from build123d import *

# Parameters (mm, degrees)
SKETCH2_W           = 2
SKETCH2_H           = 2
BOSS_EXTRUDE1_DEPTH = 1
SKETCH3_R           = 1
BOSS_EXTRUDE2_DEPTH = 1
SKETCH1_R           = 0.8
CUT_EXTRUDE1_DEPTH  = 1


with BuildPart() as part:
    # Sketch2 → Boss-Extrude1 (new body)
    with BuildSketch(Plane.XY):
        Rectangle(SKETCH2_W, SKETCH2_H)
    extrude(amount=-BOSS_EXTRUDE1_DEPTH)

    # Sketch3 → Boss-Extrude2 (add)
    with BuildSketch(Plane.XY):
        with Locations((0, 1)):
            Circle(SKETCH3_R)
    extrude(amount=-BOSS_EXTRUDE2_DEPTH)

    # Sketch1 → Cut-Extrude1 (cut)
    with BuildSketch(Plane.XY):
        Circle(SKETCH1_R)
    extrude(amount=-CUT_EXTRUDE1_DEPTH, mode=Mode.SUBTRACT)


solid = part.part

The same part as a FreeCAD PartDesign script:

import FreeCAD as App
import Part
import Sketcher

V = App.Vector
Q = App.Units.Quantity


def add_polygon(sketch, points):
    """Adds a closed chain of lines whose ends are joined by coincident constraints."""
    first, n = sketch.GeometryCount, len(points)
    for a, b in zip(points, points[1:] + points[:1]):
        sketch.addGeometry(Part.LineSegment(App.Vector(*a, 0), App.Vector(*b, 0)), False)
    for i in range(n):
        sketch.addConstraint(Sketcher.Constraint("Coincident", first + i, 2, first + (i + 1) % n, 1))

doc = App.newDocument("Part")
params = doc.addObject("Spreadsheet::Sheet", "Params")
for row, (alias, value) in enumerate([
    ("sketch1_width", "2 mm"),
    ("pad1_length", "1 mm"),
    ("sketch2_diameter", "2 mm"),
    ("pad2_length", "1 mm"),
    ("sketch3_diameter", "1.6 mm"),
    ("pocket1_length", "1 mm"),
], start=1):
    params.set(f"A{row}", alias)
    params.set(f"B{row}", "=" + value)
    params.setAlias(f"B{row}", alias)

body = doc.addObject("PartDesign::Body", "Body")

# Sketch on XY plane
sketch1 = body.newObject("Sketcher::SketchObject", "Sketch")
sketch1.AttachmentSupport = (doc.getObject("XY_Plane"), [""])
sketch1.MapMode = "FlatFace"
add_polygon(sketch1, [(-1, 1), (-1, -1), (1, -1), (1, 1)])  # lines 0-3
sketch1.addConstraint([
    Sketcher.Constraint("Vertical", 0),
    Sketcher.Constraint("Horizontal", 1),
    Sketcher.Constraint("Vertical", 2),
    Sketcher.Constraint("Horizontal", 3),
    Sketcher.Constraint("Symmetric", 0, 2, 2, 2, -1, 1),
    Sketcher.Constraint("Equal", 3, 0),
    Sketcher.Constraint("DistanceX", 1, 1, 1, 2, Q("2 mm")),
])
sketch1.setExpression("Constraints[10]", "Params.sketch1_width")
pad1 = body.newObject("PartDesign::Pad", "Pad")
pad1.Profile = sketch1
pad1.setExpression("Length", "Params.pad1_length")
pad1.Reversed = True

# Sketch on XY plane
sketch2 = body.newObject("Sketcher::SketchObject", "Sketch001")
sketch2.AttachmentSupport = (doc.getObject("XY_Plane"), [""])
sketch2.MapMode = "FlatFace"
sketch2.addGeometry(Part.Circle(V(0, 1, 0), V(0, 0, 1), 1), False)
sketch2.addConstraint([
    Sketcher.Constraint("PointOnObject", 0, 3, -2),
    Sketcher.Constraint("Diameter", 0, Q("2 mm")),
    Sketcher.Constraint("DistanceY", -1, 1, 0, 3, Q("1 mm")),
])
sketch2.setExpression("Constraints[1]", "Params.sketch2_diameter")
pad2 = body.newObject("PartDesign::Pad", "Pad001")
pad2.Profile = sketch2
pad2.setExpression("Length", "Params.pad2_length")
pad2.Reversed = True

# Sketch on XY plane
sketch3 = body.newObject("Sketcher::SketchObject", "Sketch002")
sketch3.AttachmentSupport = (doc.getObject("XY_Plane"), [""])
sketch3.MapMode = "FlatFace"
sketch3.addGeometry(Part.Circle(V(0, 0, 0), V(0, 0, 1), 0.8), False)
sketch3.addConstraint([
    Sketcher.Constraint("Coincident", 0, 3, -1, 1),
    Sketcher.Constraint("Diameter", 0, Q("1.6 mm")),
])
sketch3.setExpression("Constraints[1]", "Params.sketch3_diameter")
pocket1 = body.newObject("PartDesign::Pocket", "Pocket")
pocket1.Profile = sketch3
pocket1.setExpression("Length", "Params.pocket1_length")

doc.recompute()
